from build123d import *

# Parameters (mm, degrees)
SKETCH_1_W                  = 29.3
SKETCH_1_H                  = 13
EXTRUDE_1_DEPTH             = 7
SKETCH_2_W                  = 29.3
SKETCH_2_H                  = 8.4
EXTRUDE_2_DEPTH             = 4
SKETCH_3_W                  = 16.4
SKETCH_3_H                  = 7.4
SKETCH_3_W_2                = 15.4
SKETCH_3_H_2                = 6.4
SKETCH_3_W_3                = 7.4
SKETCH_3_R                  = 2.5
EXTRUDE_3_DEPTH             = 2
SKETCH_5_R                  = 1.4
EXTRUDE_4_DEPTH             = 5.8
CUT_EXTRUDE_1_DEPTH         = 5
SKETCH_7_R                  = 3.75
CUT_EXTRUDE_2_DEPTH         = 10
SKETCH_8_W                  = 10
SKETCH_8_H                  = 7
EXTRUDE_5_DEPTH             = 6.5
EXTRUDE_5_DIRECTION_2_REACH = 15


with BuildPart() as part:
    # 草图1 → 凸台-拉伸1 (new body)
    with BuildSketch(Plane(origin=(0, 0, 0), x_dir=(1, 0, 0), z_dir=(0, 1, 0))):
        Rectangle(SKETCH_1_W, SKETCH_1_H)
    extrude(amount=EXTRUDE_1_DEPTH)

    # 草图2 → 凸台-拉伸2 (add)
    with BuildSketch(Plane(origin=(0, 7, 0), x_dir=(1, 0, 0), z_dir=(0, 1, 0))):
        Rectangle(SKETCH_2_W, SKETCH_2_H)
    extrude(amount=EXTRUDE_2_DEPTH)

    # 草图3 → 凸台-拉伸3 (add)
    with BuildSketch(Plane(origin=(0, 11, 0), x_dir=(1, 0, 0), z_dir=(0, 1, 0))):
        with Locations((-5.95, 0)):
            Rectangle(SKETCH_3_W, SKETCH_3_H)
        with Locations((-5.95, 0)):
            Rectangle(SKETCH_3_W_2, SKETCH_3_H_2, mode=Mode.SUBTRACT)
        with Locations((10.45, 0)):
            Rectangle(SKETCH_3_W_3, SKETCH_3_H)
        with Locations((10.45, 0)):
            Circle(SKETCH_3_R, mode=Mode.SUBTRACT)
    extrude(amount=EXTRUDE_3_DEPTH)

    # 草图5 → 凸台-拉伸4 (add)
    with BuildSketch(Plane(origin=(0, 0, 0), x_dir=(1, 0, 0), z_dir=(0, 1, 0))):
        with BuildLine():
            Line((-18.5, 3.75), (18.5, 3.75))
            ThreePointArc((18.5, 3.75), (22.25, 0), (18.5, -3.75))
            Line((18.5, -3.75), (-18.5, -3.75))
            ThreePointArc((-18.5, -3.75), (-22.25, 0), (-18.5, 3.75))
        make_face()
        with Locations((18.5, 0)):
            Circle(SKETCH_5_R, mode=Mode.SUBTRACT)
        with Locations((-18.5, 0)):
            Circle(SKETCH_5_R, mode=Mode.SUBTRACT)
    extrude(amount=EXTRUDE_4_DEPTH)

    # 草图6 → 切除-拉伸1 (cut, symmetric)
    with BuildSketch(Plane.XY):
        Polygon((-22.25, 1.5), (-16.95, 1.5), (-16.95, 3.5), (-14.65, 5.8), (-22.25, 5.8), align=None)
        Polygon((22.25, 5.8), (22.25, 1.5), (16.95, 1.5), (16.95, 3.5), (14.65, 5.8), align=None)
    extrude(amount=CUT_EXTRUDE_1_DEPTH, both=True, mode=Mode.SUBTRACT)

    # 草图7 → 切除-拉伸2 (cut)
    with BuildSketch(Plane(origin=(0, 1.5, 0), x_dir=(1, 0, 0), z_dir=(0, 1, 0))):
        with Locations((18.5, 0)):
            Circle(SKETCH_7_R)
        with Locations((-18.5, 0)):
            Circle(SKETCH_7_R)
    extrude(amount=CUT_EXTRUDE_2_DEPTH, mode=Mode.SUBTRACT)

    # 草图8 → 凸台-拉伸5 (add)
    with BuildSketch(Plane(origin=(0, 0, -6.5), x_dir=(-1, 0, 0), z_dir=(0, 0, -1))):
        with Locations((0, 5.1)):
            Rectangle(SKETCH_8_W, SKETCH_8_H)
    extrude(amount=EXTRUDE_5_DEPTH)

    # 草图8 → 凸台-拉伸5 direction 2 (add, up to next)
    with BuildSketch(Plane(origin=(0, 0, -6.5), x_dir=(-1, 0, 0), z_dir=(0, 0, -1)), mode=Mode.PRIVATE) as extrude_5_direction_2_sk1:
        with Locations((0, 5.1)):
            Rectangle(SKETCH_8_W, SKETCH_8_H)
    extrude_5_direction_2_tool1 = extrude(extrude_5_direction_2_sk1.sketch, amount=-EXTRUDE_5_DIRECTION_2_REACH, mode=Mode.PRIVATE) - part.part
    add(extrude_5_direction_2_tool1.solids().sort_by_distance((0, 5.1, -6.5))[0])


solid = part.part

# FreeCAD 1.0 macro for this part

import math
import FreeCAD as App
import Part
import Sketcher

V = App.Vector

doc = App.newDocument("Part")
params = doc.addObject("Spreadsheet::Sheet", "Params")
for row, (alias, value) in enumerate([
    ("sketch1_height", "13 mm"),
    ("sketch1_width", "29.3 mm"),
    ("pad1_length", "7 mm"),
    ("sketch2_width", "29.3 mm"),
    ("sketch2_height", "8.4 mm"),
    ("pad2_length", "4 mm"),
    ("sketch3_diameter", "5 mm"),
    ("sketch3_width", "16.4 mm"),
    ("sketch3_width2", "15.4 mm"),
    ("sketch3_width3", "7.4 mm"),
    ("sketch3_height", "6.4 mm"),
    ("pad3_length", "2 mm"),
    ("sketch4_diameter", "2.8 mm"),
    ("sketch4_width", "37 mm"),
    ("sketch4_radius", "3.75 mm"),
    ("pad4_length", "5.8 mm"),
    ("sketch5_height", "2 mm"),
    ("sketch5_width", "5.3 mm"),
    ("sketch5_width2", "7.6 mm"),
    ("pocket1_length", "10 mm"),
    ("sketch6_diameter", "7.5 mm"),
    ("pocket2_length", "10 mm"),
    ("sketch7_width", "10 mm"),
    ("sketch7_height", "7 mm"),
    ("pad5_length", "6.5 mm"),
    ("sketch8_width", "10 mm"),
    ("sketch8_height", "7 mm"),
    ("pad6_length", "2.3 mm"),
], start=1):
    params.set(f"A{row}", alias)
    params.set(f"B{row}", "=" + value)
    params.setAlias(f"B{row}", alias)

body = doc.addObject("PartDesign::Body", "Body")

# Sketch on XZ plane
sketch1 = body.newObject("Sketcher::SketchObject", "Sketch")
sketch1.AttachmentSupport = (doc.getObject("XZ_Plane"), [""])
sketch1.MapMode = "FlatFace"
sketch1.addGeometry([
    Part.LineSegment(V(-15, -6, 0), V(-15, 6, 0)),
    Part.LineSegment(V(-15, 6, 0), V(15, 6, 0)),
    Part.LineSegment(V(15, 6, 0), V(15, -6, 0)),
    Part.LineSegment(V(15, -6, 0), V(-15, -6, 0)),
], False)
sketch1.addConstraint([
    Sketcher.Constraint("Coincident", 0, 2, 1, 1),
    Sketcher.Constraint("Coincident", 1, 2, 2, 1),
    Sketcher.Constraint("Coincident", 2, 2, 3, 1),
    Sketcher.Constraint("Coincident", 3, 2, 0, 1),
    Sketcher.Constraint("Vertical", 0),
    Sketcher.Constraint("Horizontal", 1),
    Sketcher.Constraint("Vertical", 2),
    Sketcher.Constraint("Horizontal", 3),
    Sketcher.Constraint("Symmetric", 0, 2, 2, 2, -1, 1),
    Sketcher.Constraint("DistanceY", 0, 1, 0, 2, 13.0),
    Sketcher.Constraint("DistanceX", 1, 1, 1, 2, 29.3),
])
sketch1.setExpression("Constraints[9]", "Params.sketch1_height")
sketch1.setExpression("Constraints[10]", "Params.sketch1_width")
pad1 = body.newObject("PartDesign::Pad", "Pad")
pad1.Profile = sketch1
pad1.setExpression("Length", "Params.pad1_length")
pad1.Reversed = True

# Sketch on XZ plane
sketch2 = body.newObject("Sketcher::SketchObject", "Sketch001")
sketch2.AttachmentSupport = (doc.getObject("XZ_Plane"), [""])
sketch2.MapMode = "FlatFace"
sketch2.AttachmentOffset = App.Placement(V(0, 0, -7), App.Rotation())
sketch2.addGeometry([
    Part.LineSegment(V(-15, -4, 0), V(-15, 4, 0)),
    Part.LineSegment(V(-15, 4, 0), V(15, 4, 0)),
    Part.LineSegment(V(15, 4, 0), V(15, -4, 0)),
    Part.LineSegment(V(15, -4, 0), V(-15, -4, 0)),
], False)
sketch2.addConstraint([
    Sketcher.Constraint("Coincident", 0, 2, 1, 1),
    Sketcher.Constraint("Coincident", 1, 2, 2, 1),
    Sketcher.Constraint("Coincident", 2, 2, 3, 1),
    Sketcher.Constraint("Coincident", 3, 2, 0, 1),
    Sketcher.Constraint("Vertical", 0),
    Sketcher.Constraint("Horizontal", 1),
    Sketcher.Constraint("Vertical", 2),
    Sketcher.Constraint("Horizontal", 3),
    Sketcher.Constraint("Symmetric", 0, 2, 2, 2, -1, 1),
    Sketcher.Constraint("DistanceX", 1, 1, 1, 2, 29.3),
    Sketcher.Constraint("DistanceY", 0, 1, 0, 2, 8.4),
])
sketch2.setExpression("Constraints[9]", "Params.sketch2_width")
sketch2.setExpression("Constraints[10]", "Params.sketch2_height")
pad2 = body.newObject("PartDesign::Pad", "Pad001")
pad2.Profile = sketch2
pad2.setExpression("Length", "Params.pad2_length")
pad2.Reversed = True

# Sketch on XZ plane
sketch3 = body.newObject("Sketcher::SketchObject", "Sketch002")
sketch3.AttachmentSupport = (doc.getObject("XZ_Plane"), [""])
sketch3.MapMode = "FlatFace"
sketch3.AttachmentOffset = App.Placement(V(0, 0, -11), App.Rotation())
sketch3.addGeometry([
    Part.LineSegment(V(-14.2, -3.7, 0), V(-14.2, 3.7, 0)),  # 0
    Part.LineSegment(V(-14.2, 3.7, 0), V(2.2, 3.7, 0)),  # 1
    Part.LineSegment(V(2.2, 3.7, 0), V(2.2, -3.7, 0)),  # 2
    Part.LineSegment(V(2.2, -3.7, 0), V(-14.2, -3.7, 0)),  # 3
    Part.LineSegment(V(1.8, 3.2, 0), V(-13.7, 3.2, 0)),  # 4
    Part.LineSegment(V(-13.7, 3.2, 0), V(-13.7, -3.2, 0)),  # 5
    Part.LineSegment(V(-13.7, -3.2, 0), V(1.8, -3.2, 0)),  # 6
    Part.LineSegment(V(1.8, -3.2, 0), V(1.8, 3.2, 0)),  # 7
    Part.LineSegment(V(6.8, -3.7, 0), V(6.8, 3.7, 0)),  # 8
    Part.LineSegment(V(6.8, 3.7, 0), V(14.2, 3.7, 0)),  # 9
    Part.LineSegment(V(14.2, 3.7, 0), V(14.2, -3.7, 0)),  # 10
    Part.LineSegment(V(14.2, -3.7, 0), V(6.8, -3.7, 0)),  # 11
    Part.Circle(V(10.4, 0, 0), V(0, 0, 1), 2.5),  # 12
], False)
sketch3.addConstraint([
    Sketcher.Constraint("Coincident", 0, 2, 1, 1),
    Sketcher.Constraint("Coincident", 1, 2, 2, 1),
    Sketcher.Constraint("Coincident", 2, 2, 3, 1),
    Sketcher.Constraint("Coincident", 3, 2, 0, 1),
    Sketcher.Constraint("Coincident", 4, 2, 5, 1),
    Sketcher.Constraint("Coincident", 5, 2, 6, 1),
    Sketcher.Constraint("Coincident", 6, 2, 7, 1),
    Sketcher.Constraint("Coincident", 7, 2, 4, 1),
    Sketcher.Constraint("Coincident", 8, 2, 9, 1),
    Sketcher.Constraint("Coincident", 9, 2, 10, 1),
    Sketcher.Constraint("Coincident", 10, 2, 11, 1),
    Sketcher.Constraint("Coincident", 11, 2, 8, 1),
    Sketcher.Constraint("Vertical", 0),
    Sketcher.Constraint("Horizontal", 1),
    Sketcher.Constraint("Vertical", 2),
    Sketcher.Constraint("Horizontal", 3),
    Sketcher.Constraint("Horizontal", 4),
    Sketcher.Constraint("Vertical", 5),
    Sketcher.Constraint("Horizontal", 6),
    Sketcher.Constraint("Vertical", 7),
    Sketcher.Constraint("Vertical", 8),
    Sketcher.Constraint("Horizontal", 9),
    Sketcher.Constraint("Vertical", 10),
    Sketcher.Constraint("Horizontal", 11),
    Sketcher.Constraint("Symmetric", 3, 2, 9, 2, -1, 1),
    Sketcher.Constraint("PointOnObject", 12, 3, -1),
    Sketcher.Constraint("Horizontal", 1, 2, 8, 2),
    Sketcher.Constraint("Horizontal", 3, 2, 10, 2),
    Sketcher.Constraint("Equal", 11, 0),
    Sketcher.Constraint("Diameter", 12, 5.0),
    Sketcher.Constraint("DistanceX", 1, 1, 1, 2, 16.4),
    Sketcher.Constraint("DistanceX", 4, 2, 4, 1, 15.4),
    Sketcher.Constraint("DistanceX", 9, 1, 9, 2, 7.4),
    Sketcher.Constraint("DistanceY", 5, 2, 5, 1, 6.4),
    Sketcher.Constraint("DistanceX", 7, 2, 8, 2, 5.0),
    Sketcher.Constraint("DistanceY", -1, 1, 4, 2, 3.2),
    Sketcher.Constraint("DistanceX", 0, 2, 12, 3, 24.6),
    Sketcher.Constraint("DistanceX", 0, 2, 4, 2, 0.5),
])
sketch3.setExpression("Constraints[29]", "Params.sketch3_diameter")
sketch3.setExpression("Constraints[30]", "Params.sketch3_width")
sketch3.setExpression("Constraints[31]", "Params.sketch3_width2")
sketch3.setExpression("Constraints[32]", "Params.sketch3_width3")
sketch3.setExpression("Constraints[33]", "Params.sketch3_height")
pad3 = body.newObject("PartDesign::Pad", "Pad002")
pad3.Profile = sketch3
pad3.setExpression("Length", "Params.pad3_length")
pad3.Reversed = True

# Sketch on XZ plane
sketch4 = body.newObject("Sketcher::SketchObject", "Sketch003")
sketch4.AttachmentSupport = (doc.getObject("XZ_Plane"), [""])
sketch4.MapMode = "FlatFace"
sketch4.addGeometry([
    Part.LineSegment(V(18.5, -3.8, 0), V(-18.5, -3.8, 0)),  # 0
    Part.ArcOfCircle(Part.Circle(V(-18.5, 0, 0), V(0, 0, 1), 3.8), math.radians(90), math.radians(270)),  # 1
    Part.LineSegment(V(-18.5, 3.8, 0), V(18.5, 3.8, 0)),  # 2
    Part.ArcOfCircle(Part.Circle(V(18.5, 0, 0), V(0, 0, 1), 3.8), math.radians(-90), math.radians(90)),  # 3
    Part.Circle(V(18.5, 0, 0), V(0, 0, 1), 1.4),  # 4
    Part.Circle(V(-18.5, 0, 0), V(0, 0, 1), 1.4),  # 5
], False)
sketch4.addConstraint([
    Sketcher.Constraint("Tangent", 0, 2, 1, 2),
    Sketcher.Constraint("Tangent", 1, 1, 2, 1),
    Sketcher.Constraint("Tangent", 2, 2, 3, 2),
    Sketcher.Constraint("Tangent", 3, 1, 0, 1),
    Sketcher.Constraint("Horizontal", 0),
    Sketcher.Constraint("Horizontal", 2),
    Sketcher.Constraint("Coincident", 4, 3, 3, 3),
    Sketcher.Constraint("Coincident", 5, 3, 1, 3),
    Sketcher.Constraint("Equal", 4, 5),
    Sketcher.Constraint("Symmetric", 1, 3, 3, 3, -1, 1),
    Sketcher.Constraint("Diameter", 4, 2.8),
    Sketcher.Constraint("DistanceX", 0, 2, 0, 1, 37.0),
    Sketcher.Constraint("Radius", 1, 3.75),
])
sketch4.setExpression("Constraints[10]", "Params.sketch4_diameter")
sketch4.setExpression("Constraints[11]", "Params.sketch4_width")
sketch4.setExpression("Constraints[12]", "Params.sketch4_radius")
pad4 = body.newObject("PartDesign::Pad", "Pad003")
pad4.Profile = sketch4
pad4.setExpression("Length", "Params.pad4_length")
pad4.Reversed = True

# Sketch on XY plane
sketch5 = body.newObject("Sketcher::SketchObject", "Sketch004")
sketch5.AttachmentSupport = (doc.getObject("XY_Plane"), [""])
sketch5.MapMode = "FlatFace"
sketch5.addGeometry([
    Part.LineSegment(V(-22.2, 1.5, 0), V(-16.9, 1.5, 0)),  # 0
    Part.LineSegment(V(-16.9, 1.5, 0), V(-16.9, 3.5, 0)),  # 1
    Part.LineSegment(V(-16.9, 3.5, 0), V(-14.7, 5.8, 0)),  # 2
    Part.LineSegment(V(-14.7, 5.8, 0), V(-22.2, 5.8, 0)),  # 3
    Part.LineSegment(V(-22.2, 5.8, 0), V(-22.2, 1.5, 0)),  # 4
    Part.LineSegment(V(22.2, 1.5, 0), V(22.2, 5.8, 0)),  # 5
    Part.LineSegment(V(22.2, 5.8, 0), V(14.7, 5.8, 0)),  # 6
    Part.LineSegment(V(14.7, 5.8, 0), V(16.9, 3.5, 0)),  # 7
    Part.LineSegment(V(16.9, 3.5, 0), V(16.9, 1.5, 0)),  # 8
    Part.LineSegment(V(16.9, 1.5, 0), V(22.2, 1.5, 0)),  # 9
], False)
sketch5.addConstraint([
    Sketcher.Constraint("Coincident", 0, 2, 1, 1),
    Sketcher.Constraint("Coincident", 1, 2, 2, 1),
    Sketcher.Constraint("Coincident", 2, 2, 3, 1),
    Sketcher.Constraint("Coincident", 3, 2, 4, 1),
    Sketcher.Constraint("Coincident", 4, 2, 0, 1),
    Sketcher.Constraint("Coincident", 5, 2, 6, 1),
    Sketcher.Constraint("Coincident", 6, 2, 7, 1),
    Sketcher.Constraint("Coincident", 7, 2, 8, 1),
    Sketcher.Constraint("Coincident", 8, 2, 9, 1),
    Sketcher.Constraint("Coincident", 9, 2, 5, 1),
    Sketcher.Constraint("Horizontal", 0),
    Sketcher.Constraint("Vertical", 1),
    Sketcher.Constraint("Horizontal", 3),
    Sketcher.Constraint("Vertical", 4),
    Sketcher.Constraint("Vertical", 5),
    Sketcher.Constraint("Horizontal", 6),
    Sketcher.Constraint("Vertical", 8),
    Sketcher.Constraint("Horizontal", 9),
    Sketcher.Constraint("Symmetric", 3, 2, 5, 2, -2),
    Sketcher.Constraint("Symmetric", 1, 2, 7, 2, -2),
    Sketcher.Constraint("Perpendicular", 2, 7),
    Sketcher.Constraint("Horizontal", 4, 2, 8, 2),
    Sketcher.Constraint("Equal", 3, 6),
    Sketcher.Constraint("DistanceY", 1, 1, 1, 2, 2.0),
    Sketcher.Constraint("DistanceX", 0, 1, 0, 2, 5.3),
    Sketcher.Constraint("DistanceX", 3, 2, 3, 1, 7.6),
    Sketcher.Constraint("DistanceY", -1, 1, 0, 2, 1.5),
    Sketcher.Constraint("DistanceX", 2, 2, 5, 2, 36.9),
])
sketch5.setExpression("Constraints[23]", "Params.sketch5_height")
sketch5.setExpression("Constraints[24]", "Params.sketch5_width")
sketch5.setExpression("Constraints[25]", "Params.sketch5_width2")
pocket1 = body.newObject("PartDesign::Pocket", "Pocket")
pocket1.Profile = sketch5
pocket1.setExpression("Length", "Params.pocket1_length")
pocket1.Midplane = True

# Sketch on XZ plane
sketch6 = body.newObject("Sketcher::SketchObject", "Sketch005")
sketch6.AttachmentSupport = (doc.getObject("XZ_Plane"), [""])
sketch6.MapMode = "FlatFace"
sketch6.AttachmentOffset = App.Placement(V(0, 0, -1.5), App.Rotation())
sketch6.addGeometry([
    Part.Circle(V(18.5, 0, 0), V(0, 0, 1), 3.8),
    Part.Circle(V(-18.5, 0, 0), V(0, 0, 1), 3.8),
], False)
sketch6.addConstraint([
    Sketcher.Constraint("Equal", 0, 1),
    Sketcher.Constraint("Symmetric", 0, 3, 1, 3, -1, 1),
    Sketcher.Constraint("PointOnObject", 0, 3, -1),
    Sketcher.Constraint("Diameter", 0, 7.5),
    Sketcher.Constraint("DistanceX", 1, 3, 0, 3, 37.0),
])
sketch6.setExpression("Constraints[3]", "Params.sketch6_diameter")
pocket2 = body.newObject("PartDesign::Pocket", "Pocket001")
pocket2.Profile = sketch6
pocket2.setExpression("Length", "Params.pocket2_length")

# Sketch on XY plane
sketch7 = body.newObject("Sketcher::SketchObject", "Sketch006")
sketch7.AttachmentSupport = (doc.getObject("XY_Plane"), [""])
sketch7.MapMode = "FlatFace"
sketch7.AttachmentOffset = App.Placement(V(0, 0, -6.5), App.Rotation())
sketch7.addGeometry([
    Part.LineSegment(V(5, 9, 0), V(5, 2, 0)),
    Part.LineSegment(V(5, 2, 0), V(-5, 2, 0)),
    Part.LineSegment(V(-5, 2, 0), V(-5, 9, 0)),
    Part.LineSegment(V(-5, 9, 0), V(5, 9, 0)),
], False)
sketch7.addConstraint([
    Sketcher.Constraint("Coincident", 0, 2, 1, 1),
    Sketcher.Constraint("Coincident", 1, 2, 2, 1),
    Sketcher.Constraint("Coincident", 2, 2, 3, 1),
    Sketcher.Constraint("Coincident", 3, 2, 0, 1),
    Sketcher.Constraint("Vertical", 0),
    Sketcher.Constraint("Horizontal", 1),
    Sketcher.Constraint("Vertical", 2),
    Sketcher.Constraint("Horizontal", 3),
    Sketcher.Constraint("DistanceX", 1, 2, 1, 1, 10.0),
    Sketcher.Constraint("DistanceY", 0, 2, 0, 1, 7.0),
    Sketcher.Constraint("DistanceX", -1, 1, 0, 2, 5.0),
    Sketcher.Constraint("DistanceY", -1, 1, 0, 2, 1.6),
])
sketch7.setExpression("Constraints[8]", "Params.sketch7_width")
sketch7.setExpression("Constraints[9]", "Params.sketch7_height")
pad5 = body.newObject("PartDesign::Pad", "Pad004")
pad5.Profile = sketch7
pad5.setExpression("Length", "Params.pad5_length")
pad5.Reversed = True

# Sketch on XY plane
sketch8 = body.newObject("Sketcher::SketchObject", "Sketch007")
sketch8.AttachmentSupport = (doc.getObject("XY_Plane"), [""])
sketch8.MapMode = "FlatFace"
sketch8.AttachmentOffset = App.Placement(V(0, 0, -6.5), App.Rotation())
sketch8.addGeometry([
    Part.LineSegment(V(5, 9, 0), V(5, 2, 0)),
    Part.LineSegment(V(5, 2, 0), V(-5, 2, 0)),
    Part.LineSegment(V(-5, 2, 0), V(-5, 9, 0)),
    Part.LineSegment(V(-5, 9, 0), V(5, 9, 0)),
], False)
sketch8.addConstraint([
    Sketcher.Constraint("Coincident", 0, 2, 1, 1),
    Sketcher.Constraint("Coincident", 1, 2, 2, 1),
    Sketcher.Constraint("Coincident", 2, 2, 3, 1),
    Sketcher.Constraint("Coincident", 3, 2, 0, 1),
    Sketcher.Constraint("Vertical", 0),
    Sketcher.Constraint("Horizontal", 1),
    Sketcher.Constraint("Vertical", 2),
    Sketcher.Constraint("Horizontal", 3),
    Sketcher.Constraint("DistanceX", 1, 2, 1, 1, 10.0),
    Sketcher.Constraint("DistanceY", 0, 2, 0, 1, 7.0),
    Sketcher.Constraint("DistanceX", -1, 1, 0, 2, 5.0),
    Sketcher.Constraint("DistanceY", -1, 1, 0, 2, 1.6),
])
sketch8.setExpression("Constraints[8]", "Params.sketch8_width")
sketch8.setExpression("Constraints[9]", "Params.sketch8_height")
pad6 = body.newObject("PartDesign::Pad", "Pad005")
pad6.Profile = sketch8
pad6.setExpression("Length", "Params.pad6_length")

doc.recompute()
